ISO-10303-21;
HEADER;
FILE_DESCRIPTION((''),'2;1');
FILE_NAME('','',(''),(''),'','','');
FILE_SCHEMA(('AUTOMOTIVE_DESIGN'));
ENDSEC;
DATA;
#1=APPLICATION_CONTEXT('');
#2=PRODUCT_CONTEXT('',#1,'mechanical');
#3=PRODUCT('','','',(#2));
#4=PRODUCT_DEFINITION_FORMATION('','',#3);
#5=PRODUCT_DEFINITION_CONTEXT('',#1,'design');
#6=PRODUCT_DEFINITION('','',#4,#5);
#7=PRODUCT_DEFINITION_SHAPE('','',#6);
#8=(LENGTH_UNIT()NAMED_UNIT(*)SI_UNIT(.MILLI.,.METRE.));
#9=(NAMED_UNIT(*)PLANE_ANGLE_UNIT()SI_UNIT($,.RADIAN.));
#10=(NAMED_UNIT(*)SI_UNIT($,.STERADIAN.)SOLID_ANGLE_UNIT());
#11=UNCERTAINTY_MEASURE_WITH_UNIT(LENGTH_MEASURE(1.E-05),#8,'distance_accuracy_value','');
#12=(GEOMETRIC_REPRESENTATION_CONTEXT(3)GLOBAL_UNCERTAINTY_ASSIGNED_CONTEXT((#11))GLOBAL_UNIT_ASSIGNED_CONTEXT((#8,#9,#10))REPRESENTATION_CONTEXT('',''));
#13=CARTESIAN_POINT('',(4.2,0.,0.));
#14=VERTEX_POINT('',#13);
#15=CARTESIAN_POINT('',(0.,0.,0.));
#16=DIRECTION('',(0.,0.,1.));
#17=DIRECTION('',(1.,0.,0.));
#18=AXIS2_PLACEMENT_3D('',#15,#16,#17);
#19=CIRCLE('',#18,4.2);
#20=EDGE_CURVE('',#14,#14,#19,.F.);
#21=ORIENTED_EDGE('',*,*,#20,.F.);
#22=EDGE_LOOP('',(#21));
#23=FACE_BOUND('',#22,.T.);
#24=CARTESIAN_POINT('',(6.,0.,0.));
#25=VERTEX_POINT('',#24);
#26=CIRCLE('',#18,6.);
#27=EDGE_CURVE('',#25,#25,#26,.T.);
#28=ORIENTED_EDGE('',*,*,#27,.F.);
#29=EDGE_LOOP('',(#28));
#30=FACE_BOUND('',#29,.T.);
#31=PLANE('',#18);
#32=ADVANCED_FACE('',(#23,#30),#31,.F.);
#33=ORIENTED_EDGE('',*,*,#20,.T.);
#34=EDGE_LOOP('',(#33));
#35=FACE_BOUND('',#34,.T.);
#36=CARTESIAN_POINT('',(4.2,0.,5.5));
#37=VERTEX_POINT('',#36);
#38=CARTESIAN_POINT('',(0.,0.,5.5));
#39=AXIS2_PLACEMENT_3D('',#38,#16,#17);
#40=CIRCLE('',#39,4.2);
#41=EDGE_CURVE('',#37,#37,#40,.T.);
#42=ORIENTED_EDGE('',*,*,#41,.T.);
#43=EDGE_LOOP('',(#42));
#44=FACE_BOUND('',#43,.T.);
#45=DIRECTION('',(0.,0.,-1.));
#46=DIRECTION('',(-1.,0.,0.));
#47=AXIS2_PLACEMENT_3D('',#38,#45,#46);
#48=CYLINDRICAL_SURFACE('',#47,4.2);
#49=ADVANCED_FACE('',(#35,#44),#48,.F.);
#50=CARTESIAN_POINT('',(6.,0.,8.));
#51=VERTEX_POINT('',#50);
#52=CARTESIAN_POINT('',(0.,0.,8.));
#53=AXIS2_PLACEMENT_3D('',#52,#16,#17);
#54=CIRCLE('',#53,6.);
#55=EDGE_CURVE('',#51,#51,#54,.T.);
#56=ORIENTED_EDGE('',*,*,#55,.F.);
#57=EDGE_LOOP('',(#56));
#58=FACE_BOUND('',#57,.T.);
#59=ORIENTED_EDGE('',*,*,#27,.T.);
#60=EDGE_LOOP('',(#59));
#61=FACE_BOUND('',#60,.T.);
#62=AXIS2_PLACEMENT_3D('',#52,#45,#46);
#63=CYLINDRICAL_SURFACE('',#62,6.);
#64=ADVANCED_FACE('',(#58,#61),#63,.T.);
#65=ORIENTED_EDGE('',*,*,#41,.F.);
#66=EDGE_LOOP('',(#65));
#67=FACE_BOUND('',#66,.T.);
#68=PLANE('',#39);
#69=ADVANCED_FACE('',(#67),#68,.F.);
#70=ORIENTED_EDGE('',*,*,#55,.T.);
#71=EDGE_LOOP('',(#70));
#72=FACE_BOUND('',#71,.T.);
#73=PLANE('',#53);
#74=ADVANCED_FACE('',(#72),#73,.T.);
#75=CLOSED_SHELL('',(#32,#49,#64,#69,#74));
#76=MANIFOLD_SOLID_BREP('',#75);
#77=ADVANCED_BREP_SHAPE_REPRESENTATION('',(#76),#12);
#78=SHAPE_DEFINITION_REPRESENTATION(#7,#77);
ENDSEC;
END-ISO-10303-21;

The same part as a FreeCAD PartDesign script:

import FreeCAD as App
import Part
import Sketcher

V = App.Vector
Q = App.Units.Quantity

doc = App.newDocument("Part")
params = doc.addObject("Spreadsheet::Sheet", "Params")
for row, (alias, value) in enumerate([
    ("sketch1_diameter", "12 mm"),
    ("pad1_length", "8 mm"),
    ("sketch2_diameter", "8.4 mm"),
    ("pocket1_length", "5.6 mm"),
], start=1):
    params.set(f"A{row}", alias)
    params.set(f"B{row}", "=" + value)
    params.setAlias(f"B{row}", alias)

body = doc.addObject("PartDesign::Body", "Body")

sketch1 = body.newObject("Sketcher::SketchObject", "Sketch")
sketch1.AttachmentSupport = (doc.getObject("XY_Plane"), [""])
sketch1.MapMode = "FlatFace"
sketch1.addGeometry(Part.Circle(V(0, 0, 0), V(0, 0, 1), 6), False)
sketch1.addConstraint([
    Sketcher.Constraint("Coincident", 0, 3, -1, 1),
    Sketcher.Constraint("Diameter", 0, Q("12 mm")),
])
sketch1.setExpression("Constraints[1]", "Params.sketch1_diameter")
pad1 = body.newObject("PartDesign::Pad", "Pad")
pad1.Profile = sketch1
pad1.setExpression("Length", "Params.pad1_length")

sketch2 = body.newObject("Sketcher::SketchObject", "Sketch001")
sketch2.AttachmentSupport = (doc.getObject("XY_Plane"), [""])
sketch2.MapMode = "FlatFace"
sketch2.AttachmentOffset = App.Placement(V(0, 0, -0.1), App.Rotation())
sketch2.addGeometry(Part.Circle(V(0, 0, 0), V(0, 0, 1), 4.2), False)
sketch2.addConstraint([
    Sketcher.Constraint("Coincident", 0, 3, -1, 1),
    Sketcher.Constraint("Diameter", 0, Q("8.4 mm")),
])
sketch2.setExpression("Constraints[1]", "Params.sketch2_diameter")
pocket1 = body.newObject("PartDesign::Pocket", "Pocket")
pocket1.Profile = sketch2
pocket1.setExpression("Length", "Params.pocket1_length")
pocket1.Reversed = True

doc.recompute()
